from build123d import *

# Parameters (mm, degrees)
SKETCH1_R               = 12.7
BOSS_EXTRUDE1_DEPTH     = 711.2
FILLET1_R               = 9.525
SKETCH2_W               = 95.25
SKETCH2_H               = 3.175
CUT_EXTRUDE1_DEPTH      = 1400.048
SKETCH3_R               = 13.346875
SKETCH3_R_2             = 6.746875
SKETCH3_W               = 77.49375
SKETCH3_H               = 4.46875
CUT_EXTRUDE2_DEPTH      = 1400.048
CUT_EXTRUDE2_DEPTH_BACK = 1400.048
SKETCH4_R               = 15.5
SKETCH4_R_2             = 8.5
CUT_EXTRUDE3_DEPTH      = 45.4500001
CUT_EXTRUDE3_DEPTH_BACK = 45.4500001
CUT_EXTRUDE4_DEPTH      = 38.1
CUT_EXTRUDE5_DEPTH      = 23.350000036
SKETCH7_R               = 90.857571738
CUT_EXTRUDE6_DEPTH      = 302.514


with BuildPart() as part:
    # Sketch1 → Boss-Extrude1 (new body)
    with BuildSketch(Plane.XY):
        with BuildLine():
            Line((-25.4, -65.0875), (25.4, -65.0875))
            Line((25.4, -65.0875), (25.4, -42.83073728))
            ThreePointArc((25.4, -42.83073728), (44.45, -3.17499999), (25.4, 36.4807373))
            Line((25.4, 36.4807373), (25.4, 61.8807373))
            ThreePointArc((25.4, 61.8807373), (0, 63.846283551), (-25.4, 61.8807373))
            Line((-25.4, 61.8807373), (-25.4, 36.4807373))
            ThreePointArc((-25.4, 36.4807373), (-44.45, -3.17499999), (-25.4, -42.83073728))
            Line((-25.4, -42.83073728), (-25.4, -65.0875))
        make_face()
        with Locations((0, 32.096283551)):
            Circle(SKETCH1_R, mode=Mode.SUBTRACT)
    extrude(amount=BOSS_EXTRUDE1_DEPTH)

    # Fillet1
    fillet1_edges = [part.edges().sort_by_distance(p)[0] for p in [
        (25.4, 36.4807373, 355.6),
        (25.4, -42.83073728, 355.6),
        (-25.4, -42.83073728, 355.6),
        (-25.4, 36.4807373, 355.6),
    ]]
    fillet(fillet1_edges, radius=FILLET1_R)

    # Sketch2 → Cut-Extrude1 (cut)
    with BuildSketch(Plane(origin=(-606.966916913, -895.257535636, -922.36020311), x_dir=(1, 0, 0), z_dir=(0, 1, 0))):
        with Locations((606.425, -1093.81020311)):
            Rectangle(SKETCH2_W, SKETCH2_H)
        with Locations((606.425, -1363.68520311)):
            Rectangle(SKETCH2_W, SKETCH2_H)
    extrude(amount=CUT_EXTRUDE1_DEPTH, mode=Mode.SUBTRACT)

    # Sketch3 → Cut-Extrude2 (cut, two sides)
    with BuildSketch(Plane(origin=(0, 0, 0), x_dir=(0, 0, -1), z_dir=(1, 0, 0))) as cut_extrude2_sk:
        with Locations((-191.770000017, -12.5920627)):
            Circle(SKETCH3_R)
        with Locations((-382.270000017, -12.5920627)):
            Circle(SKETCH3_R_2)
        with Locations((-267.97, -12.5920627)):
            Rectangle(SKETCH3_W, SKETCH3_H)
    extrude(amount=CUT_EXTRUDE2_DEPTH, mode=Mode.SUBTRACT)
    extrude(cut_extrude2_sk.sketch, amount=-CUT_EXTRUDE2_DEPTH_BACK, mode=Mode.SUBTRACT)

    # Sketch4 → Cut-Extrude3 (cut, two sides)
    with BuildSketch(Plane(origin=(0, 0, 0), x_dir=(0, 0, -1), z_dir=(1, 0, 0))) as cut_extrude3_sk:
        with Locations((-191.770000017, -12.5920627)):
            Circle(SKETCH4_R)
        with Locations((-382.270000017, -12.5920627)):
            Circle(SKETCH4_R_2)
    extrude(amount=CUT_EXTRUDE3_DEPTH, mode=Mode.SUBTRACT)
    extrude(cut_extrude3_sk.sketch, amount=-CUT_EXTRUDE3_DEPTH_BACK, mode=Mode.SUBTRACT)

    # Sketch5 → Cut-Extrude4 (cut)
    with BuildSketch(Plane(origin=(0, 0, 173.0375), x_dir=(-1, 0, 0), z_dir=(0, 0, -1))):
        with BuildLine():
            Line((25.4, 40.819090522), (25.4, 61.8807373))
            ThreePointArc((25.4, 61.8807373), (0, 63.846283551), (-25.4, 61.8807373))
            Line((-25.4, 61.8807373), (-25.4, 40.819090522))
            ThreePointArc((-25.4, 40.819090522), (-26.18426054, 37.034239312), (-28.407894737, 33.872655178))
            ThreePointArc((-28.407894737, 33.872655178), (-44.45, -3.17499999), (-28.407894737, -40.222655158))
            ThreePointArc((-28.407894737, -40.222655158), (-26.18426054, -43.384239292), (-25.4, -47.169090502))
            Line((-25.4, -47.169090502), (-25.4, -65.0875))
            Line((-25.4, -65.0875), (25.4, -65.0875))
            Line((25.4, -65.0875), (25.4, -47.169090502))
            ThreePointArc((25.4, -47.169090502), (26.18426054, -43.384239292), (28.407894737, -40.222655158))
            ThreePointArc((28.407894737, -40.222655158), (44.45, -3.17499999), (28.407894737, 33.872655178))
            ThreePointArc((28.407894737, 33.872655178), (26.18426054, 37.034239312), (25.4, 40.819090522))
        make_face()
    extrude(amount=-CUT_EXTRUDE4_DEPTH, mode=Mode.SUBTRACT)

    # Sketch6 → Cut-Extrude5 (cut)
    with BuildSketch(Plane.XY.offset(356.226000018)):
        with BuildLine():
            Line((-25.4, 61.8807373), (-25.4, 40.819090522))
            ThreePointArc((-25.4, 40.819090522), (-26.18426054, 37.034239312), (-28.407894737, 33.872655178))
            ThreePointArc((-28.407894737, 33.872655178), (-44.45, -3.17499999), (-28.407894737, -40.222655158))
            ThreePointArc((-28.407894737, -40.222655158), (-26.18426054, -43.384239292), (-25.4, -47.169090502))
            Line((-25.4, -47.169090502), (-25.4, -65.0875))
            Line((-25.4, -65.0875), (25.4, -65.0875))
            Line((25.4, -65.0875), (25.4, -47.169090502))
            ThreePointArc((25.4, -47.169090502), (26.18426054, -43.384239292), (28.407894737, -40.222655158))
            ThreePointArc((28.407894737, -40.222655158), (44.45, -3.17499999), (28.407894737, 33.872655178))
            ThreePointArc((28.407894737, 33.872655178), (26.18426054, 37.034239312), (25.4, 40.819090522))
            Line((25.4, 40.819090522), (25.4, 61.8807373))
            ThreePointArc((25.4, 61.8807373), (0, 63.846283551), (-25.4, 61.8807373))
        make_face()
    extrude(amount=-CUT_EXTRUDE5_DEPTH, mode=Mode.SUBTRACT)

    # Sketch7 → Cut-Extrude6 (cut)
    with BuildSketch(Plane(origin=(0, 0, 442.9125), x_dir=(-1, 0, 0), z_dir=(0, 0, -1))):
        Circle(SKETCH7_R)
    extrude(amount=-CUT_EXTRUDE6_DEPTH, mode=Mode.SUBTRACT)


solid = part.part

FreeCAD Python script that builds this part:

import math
import FreeCAD as App
import Part
import Sketcher

V = App.Vector
Q = App.Units.Quantity


def edges_at(feature, points):
    """Names of the edges that pass closest to the given points."""
    edges = feature.Shape.Edges
    near = lambda p: min(range(len(edges)), key=lambda i: edges[i].distToShape(Part.Vertex(*p))[0])
    return sorted({f"Edge{near(p) + 1}" for p in points})

doc = App.newDocument("Part")
body = doc.addObject("PartDesign::Body", "Body")
body.AllowCompound = True

# Sketch on XY plane
sketch1 = doc.addObject("Sketcher::SketchObject", "Sketch")
body.addObject(sketch1)
sketch1.AttachmentSupport = (doc.XY_Plane, [""])
sketch1.MapMode = "FlatFace"
sketch1.addGeometry([
    Part.LineSegment(V(-25, -65, 0), V(25, -65, 0)),  # 0
    Part.LineSegment(V(25, -65, 0), V(25, -43, 0)),  # 1
    Part.ArcOfCircle(Part.Circle(V(-6, -3, 0), V(0, 0, 1), 51), math.radians(-51), math.radians(51)),  # 2
    Part.LineSegment(V(25, 36, 0), V(25, 62, 0)),  # 3
    Part.ArcOfCircle(Part.Circle(V(0, -101, 0), V(0, 0, 1), 165), math.radians(81.15), math.radians(98.85)),  # 4
    Part.LineSegment(V(-25, 62, 0), V(-25, 36, 0)),  # 5
    Part.ArcOfCircle(Part.Circle(V(6, -3, 0), V(0, 0, 1), 51), math.radians(129), math.radians(231)),  # 6
    Part.LineSegment(V(-25, -43, 0), V(-25, -65, 0)),  # 7
    Part.Circle(V(0, 32, 0), V(0, 0, 1), 13),  # 8
], False)
sketch1.addConstraint([
    Sketcher.Constraint("Coincident", 0, 2, 1, 1),
    Sketcher.Constraint("Coincident", 1, 2, 2, 1),
    Sketcher.Constraint("Coincident", 2, 2, 3, 1),
    Sketcher.Constraint("Coincident", 3, 2, 4, 1),
    Sketcher.Constraint("Coincident", 4, 2, 5, 1),
    Sketcher.Constraint("Coincident", 5, 2, 6, 1),
    Sketcher.Constraint("Coincident", 6, 2, 7, 1),
    Sketcher.Constraint("Coincident", 7, 2, 0, 1),
    Sketcher.Constraint("Horizontal", 0),
    Sketcher.Constraint("Vertical", 1),
    Sketcher.Constraint("Vertical", 3),
    Sketcher.Constraint("Vertical", 5),
    Sketcher.Constraint("Vertical", 7),
    Sketcher.Constraint("Equal", 2, 6),
    Sketcher.Constraint("Symmetric", 2, 3, 6, 3, -2),
    Sketcher.Constraint("Symmetric", 3, 2, 4, 2, -2),
    Sketcher.Constraint("PointOnObject", 8, 3, -2),
    Sketcher.Constraint("Horizontal", 1, 2, 6, 2),
    Sketcher.Constraint("Vertical", 1, 2, 2, 2),
    Sketcher.Constraint("Diameter", 8, Q("1 in")),
    Sketcher.Constraint("Radius", 2, Q("2 in")),
    Sketcher.Constraint("Radius", 4, Q("6.5 in")),
    Sketcher.Constraint("DistanceX", 0, 1, 0, 2, Q("2 in")),
    Sketcher.Constraint("DistanceY", 3, 1, 3, 2, Q("1 in")),
    Sketcher.Constraint("DistanceX", 2, 3, 6, 3, Q("0.5 in")),
    Sketcher.Constraint("DistanceY", 4, 3, 8, 3, Q("5.25 in")),
    Sketcher.Constraint("DistanceY", 2, 3, -1, 1, Q("0.125 in")),
    Sketcher.Constraint("DistanceY", 0, 2, -1, 1, Q("2.5625 in")),
])
pad1 = doc.addObject("PartDesign::Pad", "Pad")
body.addObject(pad1)
pad1.Profile = sketch1
pad1.Length = Q("28 in")
doc.recompute()

fillet = doc.addObject("PartDesign::Fillet", "Fillet")
body.addObject(fillet)
fillet.Base = (pad1, edges_at(pad1, [
    (25.4, 36.481, 355.6),
    (25.4, -42.831, 355.6),
    (-25.4, -42.831, 355.6),
    (-25.4, 36.481, 355.6),
]))
fillet.Radius = Q("0.375 in")

# Sketch on XZ plane
sketch2 = doc.addObject("Sketcher::SketchObject", "Sketch001")
body.addObject(sketch2)
sketch2.AttachmentSupport = (doc.XZ_Plane, [""])
sketch2.MapMode = "FlatFace"
sketch2.AttachmentOffset = App.Placement(V(0, 0, 895.257536), App.Rotation())
sketch2.addGeometry([
    Part.LineSegment(V(-48.2, 169.9, 0), V(-48.2, 173, 0)),  # 0
    Part.LineSegment(V(-48.2, 173, 0), V(47.1, 173, 0)),  # 1
    Part.LineSegment(V(47.1, 173, 0), V(47.1, 169.9, 0)),  # 2
    Part.LineSegment(V(47.1, 169.9, 0), V(-48.2, 169.9, 0)),  # 3
    Part.LineSegment(V(-48.2, 439.7, 0), V(-48.2, 442.9, 0)),  # 4
    Part.LineSegment(V(-48.2, 442.9, 0), V(47.1, 442.9, 0)),  # 5
    Part.LineSegment(V(47.1, 442.9, 0), V(47.1, 439.7, 0)),  # 6
    Part.LineSegment(V(47.1, 439.7, 0), V(-48.2, 439.7, 0)),  # 7
], False)
sketch2.addConstraint([
    Sketcher.Constraint("Coincident", 0, 2, 1, 1),
    Sketcher.Constraint("Coincident", 1, 2, 2, 1),
    Sketcher.Constraint("Coincident", 2, 2, 3, 1),
    Sketcher.Constraint("Coincident", 3, 2, 0, 1),
    Sketcher.Constraint("Coincident", 4, 2, 5, 1),
    Sketcher.Constraint("Coincident", 5, 2, 6, 1),
    Sketcher.Constraint("Coincident", 6, 2, 7, 1),
    Sketcher.Constraint("Coincident", 7, 2, 4, 1),
    Sketcher.Constraint("Vertical", 0),
    Sketcher.Constraint("Horizontal", 1),
    Sketcher.Constraint("Vertical", 2),
    Sketcher.Constraint("Horizontal", 3),
    Sketcher.Constraint("Vertical", 4),
    Sketcher.Constraint("Horizontal", 5),
    Sketcher.Constraint("Vertical", 6),
    Sketcher.Constraint("Horizontal", 7),
    Sketcher.Constraint("Vertical", 3, 2, 4, 2),
    Sketcher.Constraint("Vertical", 2, 2, 5, 2),
    Sketcher.Constraint("Equal", 2, 4),
    Sketcher.Constraint("DistanceX", 1, 1, 1, 2, Q("3.75 in")),
    Sketcher.Constraint("DistanceY", 1, 2, 6, 2, Q("10.5 in")),
    Sketcher.Constraint("DistanceY", 0, 1, 0, 2, Q("0.125 in")),
    Sketcher.Constraint("DistanceY", -1, 1, 0, 2, Q("6.8125 in")),
    Sketcher.Constraint("DistanceX", 0, 2, -1, 1, 48.166917),
])
pocket1 = doc.addObject("PartDesign::Pocket", "Pocket")
body.addObject(pocket1)
pocket1.Profile = sketch2
pocket1.Length = Q("55.12 in")

# Sketch on YZ plane
sketch3 = doc.addObject("Sketcher::SketchObject", "Sketch002")
body.addObject(sketch3)
sketch3.AttachmentSupport = (doc.YZ_Plane, [""])
sketch3.MapMode = "FlatFace"
sketch3.addGeometry([
    Part.Circle(V(-12.6, 191.8, 0), V(0, 0, 1), 13.3),  # 0
    Part.Circle(V(-12.6, 382.3, 0), V(0, 0, 1), 6.7),  # 1
    Part.LineSegment(V(-10.4, 306.7, 0), V(-14.8, 306.7, 0)),  # 2
    Part.LineSegment(V(-14.8, 306.7, 0), V(-14.8, 229.2, 0)),  # 3
    Part.LineSegment(V(-14.8, 229.2, 0), V(-10.4, 229.2, 0)),  # 4
    Part.LineSegment(V(-10.4, 229.2, 0), V(-10.4, 306.7, 0)),  # 5
], False)
sketch3.addConstraint([
    Sketcher.Constraint("Coincident", 2, 2, 3, 1),
    Sketcher.Constraint("Coincident", 3, 2, 4, 1),
    Sketcher.Constraint("Coincident", 4, 2, 5, 1),
    Sketcher.Constraint("Coincident", 5, 2, 2, 1),
    Sketcher.Constraint("Horizontal", 2),
    Sketcher.Constraint("Vertical", 3),
    Sketcher.Constraint("Horizontal", 4),
    Sketcher.Constraint("Vertical", 5),
    Sketcher.Constraint("Vertical", 0, 3, 1, 3),
    Sketcher.Constraint("Diameter", 1, Q("0.53125 in")),
    Sketcher.Constraint("DistanceY", 0, 3, 1, 3, Q("7.5 in")),
    Sketcher.Constraint("DistanceY", -1, 1, 0, 3, Q("7.55 in")),
    Sketcher.Constraint("Diameter", 0, 26.69375),
    Sketcher.Constraint("DistanceX", 2, 2, 2, 1, 4.46875),
    Sketcher.Constraint("DistanceY", 3, 2, 3, 1, 77.49375),
    Sketcher.Constraint("DistanceX", 0, 3, -1, 1, 12.592063),
    Sketcher.Constraint("DistanceX", 2, 2, -1, 1, 14.826438),
    Sketcher.Constraint("DistanceY", -1, 1, 2, 2, 306.716875),
])
pocket2 = doc.addObject("PartDesign::Pocket", "Pocket001")
body.addObject(pocket2)
pocket2.Profile = sketch3
pocket2.Type = "ThroughAll"
pocket2.Midplane = True

# Sketch on YZ plane
sketch4 = doc.addObject("Sketcher::SketchObject", "Sketch003")
body.addObject(sketch4)
sketch4.AttachmentSupport = (doc.YZ_Plane, [""])
sketch4.MapMode = "FlatFace"
sketch4.addGeometry([
    Part.Circle(V(-13, 192, 0), V(0, 0, 1), 16),
    Part.Circle(V(-13, 382, 0), V(0, 0, 1), 8),
], False)
sketch4.addConstraint([
    Sketcher.Constraint("Vertical", 0, 3, 1, 3),
    Sketcher.Constraint("DistanceY", 0, 3, 1, 3, Q("7.5 in")),
    Sketcher.Constraint("Diameter", 0, 31.0),
    Sketcher.Constraint("Diameter", 1, 17.0),
    Sketcher.Constraint("DistanceY", -1, 1, 0, 3, Q("7.55 in")),
    Sketcher.Constraint("DistanceX", 0, 3, -1, 1, 12.592063),
])
pocket3 = doc.addObject("PartDesign::Pocket", "Pocket002")
body.addObject(pocket3)
pocket3.Profile = sketch4
pocket3.Type = "ThroughAll"
pocket3.Midplane = True

# Sketch on XY plane
sketch5 = doc.addObject("Sketcher::SketchObject", "Sketch004")
body.addObject(sketch5)
sketch5.AttachmentSupport = (doc.XY_Plane, [""])
sketch5.MapMode = "FlatFace"
sketch5.AttachmentOffset = App.Placement(V(0, 0, 6.8125 * 25.4), App.Rotation())
sketch5.addGeometry([
    Part.LineSegment(V(-25, 41, 0), V(-25, 62, 0)),  # 0
    Part.ArcOfCircle(Part.Circle(V(0, -101, 0), V(0, 0, 1), 165), math.radians(81.15), math.radians(98.85)),  # 1
    Part.LineSegment(V(25, 62, 0), V(25, 41, 0)),  # 2
    Part.ArcOfCircle(Part.Circle(V(35, 41, 0), V(0, 0, 1), 10), math.radians(-180), math.radians(-133)),  # 3
    Part.ArcOfCircle(Part.Circle(V(-6, -3, 0), V(0, 0, 1), 51), math.radians(-47), math.radians(47)),  # 4
    Part.ArcOfCircle(Part.Circle(V(35, -47, 0), V(0, 0, 1), 10), math.radians(133), math.radians(180)),  # 5
    Part.LineSegment(V(25, -47, 0), V(25, -65, 0)),  # 6
    Part.LineSegment(V(25, -65, 0), V(-25, -65, 0)),  # 7
    Part.LineSegment(V(-25, -65, 0), V(-25, -47, 0)),  # 8
    Part.ArcOfCircle(Part.Circle(V(-35, -47, 0), V(0, 0, 1), 10), math.radians(0), math.radians(47)),  # 9
    Part.ArcOfCircle(Part.Circle(V(6, -3, 0), V(0, 0, 1), 51), math.radians(133), math.radians(227)),  # 10
    Part.ArcOfCircle(Part.Circle(V(-35, 41, 0), V(0, 0, 1), 10), math.radians(-47), math.radians(0)),  # 11
], False)
sketch5.addConstraint([
    Sketcher.Constraint("Coincident", 0, 2, 1, 2),
    Sketcher.Constraint("Coincident", 1, 1, 2, 1),
    Sketcher.Constraint("Tangent", 2, 2, 3, 1),
    Sketcher.Constraint("Tangent", 3, 2, 4, 2),
    Sketcher.Constraint("Tangent", 4, 1, 5, 1),
    Sketcher.Constraint("Tangent", 5, 2, 6, 1),
    Sketcher.Constraint("Coincident", 6, 2, 7, 1),
    Sketcher.Constraint("Coincident", 7, 2, 8, 1),
    Sketcher.Constraint("Tangent", 8, 2, 9, 1),
    Sketcher.Constraint("Tangent", 9, 2, 10, 2),
    Sketcher.Constraint("Tangent", 10, 1, 11, 1),
    Sketcher.Constraint("Tangent", 11, 2, 0, 1),
    Sketcher.Constraint("Vertical", 0),
    Sketcher.Constraint("Vertical", 2),
    Sketcher.Constraint("Vertical", 6),
    Sketcher.Constraint("Horizontal", 7),
    Sketcher.Constraint("Vertical", 8),
    Sketcher.Constraint("Equal", 3, 5),
    Sketcher.Constraint("Equal", 5, 9),
    Sketcher.Constraint("Equal", 4, 10),
    Sketcher.Constraint("Equal", 9, 11),
    Sketcher.Constraint("Symmetric", 5, 3, 9, 3, -2),
    Sketcher.Constraint("Symmetric", 3, 3, 11, 3, -2),
    Sketcher.Constraint("PointOnObject", 1, 3, -2),
    Sketcher.Constraint("Vertical", 3, 3, 5, 3),
    Sketcher.Constraint("Radius", 4, Q("2 in")),
    Sketcher.Constraint("Radius", 1, Q("6.5 in")),
    Sketcher.Constraint("DistanceX", 7, 2, 7, 1, Q("2 in")),
    Sketcher.Constraint("Radius", 3, Q("0.375 in")),
    Sketcher.Constraint("DistanceX", 4, 3, 10, 3, Q("0.5 in")),
    Sketcher.Constraint("DistanceY", 4, 3, -1, 1, Q("0.125 in")),
    Sketcher.Constraint("DistanceY", 6, 2, -1, 1, Q("2.5625 in")),
    Sketcher.Constraint("DistanceY", 0, 1, 0, 2, 21.061647),
])
pocket4 = doc.addObject("PartDesign::Pocket", "Pocket003")
body.addObject(pocket4)
pocket4.Profile = sketch5
pocket4.Length = Q("1.5 in")
pocket4.Reversed = True

# Sketch on XY plane
sketch6 = doc.addObject("Sketcher::SketchObject", "Sketch005")
body.addObject(sketch6)
sketch6.AttachmentSupport = (doc.XY_Plane, [""])
sketch6.MapMode = "FlatFace"
sketch6.AttachmentOffset = App.Placement(V(0, 0, 356.226), App.Rotation())
sketch6.addGeometry([
    Part.LineSegment(V(-25, 62, 0), V(-25, 41, 0)),  # 0
    Part.ArcOfCircle(Part.Circle(V(-35, 41, 0), V(0, 0, 1), 10), math.radians(-47), math.radians(0)),  # 1
    Part.ArcOfCircle(Part.Circle(V(6, -3, 0), V(0, 0, 1), 51), math.radians(133), math.radians(227)),  # 2
    Part.ArcOfCircle(Part.Circle(V(-35, -47, 0), V(0, 0, 1), 10), math.radians(0), math.radians(47)),  # 3
    Part.LineSegment(V(-25, -47, 0), V(-25, -65, 0)),  # 4
    Part.LineSegment(V(-25, -65, 0), V(25, -65, 0)),  # 5
    Part.LineSegment(V(25, -65, 0), V(25, -47, 0)),  # 6
    Part.ArcOfCircle(Part.Circle(V(35, -47, 0), V(0, 0, 1), 10), math.radians(133), math.radians(180)),  # 7
    Part.ArcOfCircle(Part.Circle(V(-6, -3, 0), V(0, 0, 1), 51), math.radians(-47), math.radians(47)),  # 8
    Part.ArcOfCircle(Part.Circle(V(35, 41, 0), V(0, 0, 1), 10), math.radians(-180), math.radians(-133)),  # 9
    Part.LineSegment(V(25, 41, 0), V(25, 62, 0)),  # 10
    Part.ArcOfCircle(Part.Circle(V(0, -101, 0), V(0, 0, 1), 165), math.radians(81.15), math.radians(98.85)),  # 11
], False)
sketch6.addConstraint([
    Sketcher.Constraint("Tangent", 0, 2, 1, 2),
    Sketcher.Constraint("Tangent", 1, 1, 2, 1),
    Sketcher.Constraint("Tangent", 2, 2, 3, 2),
    Sketcher.Constraint("Tangent", 3, 1, 4, 1),
    Sketcher.Constraint("Coincident", 4, 2, 5, 1),
    Sketcher.Constraint("Coincident", 5, 2, 6, 1),
    Sketcher.Constraint("Tangent", 6, 2, 7, 2),
    Sketcher.Constraint("Tangent", 7, 1, 8, 1),
    Sketcher.Constraint("Tangent", 8, 2, 9, 2),
    Sketcher.Constraint("Tangent", 9, 1, 10, 1),
    Sketcher.Constraint("Coincident", 10, 2, 11, 1),
    Sketcher.Constraint("Coincident", 11, 2, 0, 1),
    Sketcher.Constraint("Vertical", 0),
    Sketcher.Constraint("Vertical", 4),
    Sketcher.Constraint("Horizontal", 5),
    Sketcher.Constraint("Vertical", 6),
    Sketcher.Constraint("Vertical", 10),
    Sketcher.Constraint("Equal", 1, 3),
    Sketcher.Constraint("Equal", 3, 7),
    Sketcher.Constraint("Equal", 2, 8),
    Sketcher.Constraint("Equal", 7, 9),
    Sketcher.Constraint("Symmetric", 3, 3, 7, 3, -2),
    Sketcher.Constraint("Symmetric", 1, 3, 9, 3, -2),
    Sketcher.Constraint("PointOnObject", 11, 3, -2),
    Sketcher.Constraint("Vertical", 1, 3, 3, 3),
    Sketcher.Constraint("Radius", 2, Q("2 in")),
    Sketcher.Constraint("Radius", 11, Q("6.5 in")),
    Sketcher.Constraint("DistanceX", 5, 1, 5, 2, Q("2 in")),
    Sketcher.Constraint("Radius", 1, Q("0.375 in")),
    Sketcher.Constraint("DistanceX", 8, 3, 2, 3, Q("0.5 in")),
    Sketcher.Constraint("DistanceY", 2, 3, -1, 1, Q("0.125 in")),
    Sketcher.Constraint("DistanceY", 4, 2, -1, 1, Q("2.5625 in")),
    Sketcher.Constraint("DistanceY", 0, 2, 0, 1, 21.061647),
])
pocket5 = doc.addObject("PartDesign::Pocket", "Pocket004")
body.addObject(pocket5)
pocket5.Profile = sketch6
pocket5.Length = 23.35

# Sketch on XY plane
sketch7 = doc.addObject("Sketcher::SketchObject", "Sketch006")
body.addObject(sketch7)
sketch7.AttachmentSupport = (doc.XY_Plane, [""])
sketch7.MapMode = "FlatFace"
sketch7.AttachmentOffset = App.Placement(V(0, 0, 17.4375 * 25.4), App.Rotation())
sketch7.addGeometry(Part.Circle(V(0, 0, 0), V(0, 0, 1), 91), False)
sketch7.addConstraint([
    Sketcher.Constraint("Coincident", 0, 3, -1, 1),
    Sketcher.Constraint("Diameter", 0, 181.715143),
])
pocket6 = doc.addObject("PartDesign::Pocket", "Pocket005")
body.addObject(pocket6)
pocket6.Profile = sketch7
pocket6.Length = Q("11.91 in")
pocket6.Reversed = True

doc.recompute()
